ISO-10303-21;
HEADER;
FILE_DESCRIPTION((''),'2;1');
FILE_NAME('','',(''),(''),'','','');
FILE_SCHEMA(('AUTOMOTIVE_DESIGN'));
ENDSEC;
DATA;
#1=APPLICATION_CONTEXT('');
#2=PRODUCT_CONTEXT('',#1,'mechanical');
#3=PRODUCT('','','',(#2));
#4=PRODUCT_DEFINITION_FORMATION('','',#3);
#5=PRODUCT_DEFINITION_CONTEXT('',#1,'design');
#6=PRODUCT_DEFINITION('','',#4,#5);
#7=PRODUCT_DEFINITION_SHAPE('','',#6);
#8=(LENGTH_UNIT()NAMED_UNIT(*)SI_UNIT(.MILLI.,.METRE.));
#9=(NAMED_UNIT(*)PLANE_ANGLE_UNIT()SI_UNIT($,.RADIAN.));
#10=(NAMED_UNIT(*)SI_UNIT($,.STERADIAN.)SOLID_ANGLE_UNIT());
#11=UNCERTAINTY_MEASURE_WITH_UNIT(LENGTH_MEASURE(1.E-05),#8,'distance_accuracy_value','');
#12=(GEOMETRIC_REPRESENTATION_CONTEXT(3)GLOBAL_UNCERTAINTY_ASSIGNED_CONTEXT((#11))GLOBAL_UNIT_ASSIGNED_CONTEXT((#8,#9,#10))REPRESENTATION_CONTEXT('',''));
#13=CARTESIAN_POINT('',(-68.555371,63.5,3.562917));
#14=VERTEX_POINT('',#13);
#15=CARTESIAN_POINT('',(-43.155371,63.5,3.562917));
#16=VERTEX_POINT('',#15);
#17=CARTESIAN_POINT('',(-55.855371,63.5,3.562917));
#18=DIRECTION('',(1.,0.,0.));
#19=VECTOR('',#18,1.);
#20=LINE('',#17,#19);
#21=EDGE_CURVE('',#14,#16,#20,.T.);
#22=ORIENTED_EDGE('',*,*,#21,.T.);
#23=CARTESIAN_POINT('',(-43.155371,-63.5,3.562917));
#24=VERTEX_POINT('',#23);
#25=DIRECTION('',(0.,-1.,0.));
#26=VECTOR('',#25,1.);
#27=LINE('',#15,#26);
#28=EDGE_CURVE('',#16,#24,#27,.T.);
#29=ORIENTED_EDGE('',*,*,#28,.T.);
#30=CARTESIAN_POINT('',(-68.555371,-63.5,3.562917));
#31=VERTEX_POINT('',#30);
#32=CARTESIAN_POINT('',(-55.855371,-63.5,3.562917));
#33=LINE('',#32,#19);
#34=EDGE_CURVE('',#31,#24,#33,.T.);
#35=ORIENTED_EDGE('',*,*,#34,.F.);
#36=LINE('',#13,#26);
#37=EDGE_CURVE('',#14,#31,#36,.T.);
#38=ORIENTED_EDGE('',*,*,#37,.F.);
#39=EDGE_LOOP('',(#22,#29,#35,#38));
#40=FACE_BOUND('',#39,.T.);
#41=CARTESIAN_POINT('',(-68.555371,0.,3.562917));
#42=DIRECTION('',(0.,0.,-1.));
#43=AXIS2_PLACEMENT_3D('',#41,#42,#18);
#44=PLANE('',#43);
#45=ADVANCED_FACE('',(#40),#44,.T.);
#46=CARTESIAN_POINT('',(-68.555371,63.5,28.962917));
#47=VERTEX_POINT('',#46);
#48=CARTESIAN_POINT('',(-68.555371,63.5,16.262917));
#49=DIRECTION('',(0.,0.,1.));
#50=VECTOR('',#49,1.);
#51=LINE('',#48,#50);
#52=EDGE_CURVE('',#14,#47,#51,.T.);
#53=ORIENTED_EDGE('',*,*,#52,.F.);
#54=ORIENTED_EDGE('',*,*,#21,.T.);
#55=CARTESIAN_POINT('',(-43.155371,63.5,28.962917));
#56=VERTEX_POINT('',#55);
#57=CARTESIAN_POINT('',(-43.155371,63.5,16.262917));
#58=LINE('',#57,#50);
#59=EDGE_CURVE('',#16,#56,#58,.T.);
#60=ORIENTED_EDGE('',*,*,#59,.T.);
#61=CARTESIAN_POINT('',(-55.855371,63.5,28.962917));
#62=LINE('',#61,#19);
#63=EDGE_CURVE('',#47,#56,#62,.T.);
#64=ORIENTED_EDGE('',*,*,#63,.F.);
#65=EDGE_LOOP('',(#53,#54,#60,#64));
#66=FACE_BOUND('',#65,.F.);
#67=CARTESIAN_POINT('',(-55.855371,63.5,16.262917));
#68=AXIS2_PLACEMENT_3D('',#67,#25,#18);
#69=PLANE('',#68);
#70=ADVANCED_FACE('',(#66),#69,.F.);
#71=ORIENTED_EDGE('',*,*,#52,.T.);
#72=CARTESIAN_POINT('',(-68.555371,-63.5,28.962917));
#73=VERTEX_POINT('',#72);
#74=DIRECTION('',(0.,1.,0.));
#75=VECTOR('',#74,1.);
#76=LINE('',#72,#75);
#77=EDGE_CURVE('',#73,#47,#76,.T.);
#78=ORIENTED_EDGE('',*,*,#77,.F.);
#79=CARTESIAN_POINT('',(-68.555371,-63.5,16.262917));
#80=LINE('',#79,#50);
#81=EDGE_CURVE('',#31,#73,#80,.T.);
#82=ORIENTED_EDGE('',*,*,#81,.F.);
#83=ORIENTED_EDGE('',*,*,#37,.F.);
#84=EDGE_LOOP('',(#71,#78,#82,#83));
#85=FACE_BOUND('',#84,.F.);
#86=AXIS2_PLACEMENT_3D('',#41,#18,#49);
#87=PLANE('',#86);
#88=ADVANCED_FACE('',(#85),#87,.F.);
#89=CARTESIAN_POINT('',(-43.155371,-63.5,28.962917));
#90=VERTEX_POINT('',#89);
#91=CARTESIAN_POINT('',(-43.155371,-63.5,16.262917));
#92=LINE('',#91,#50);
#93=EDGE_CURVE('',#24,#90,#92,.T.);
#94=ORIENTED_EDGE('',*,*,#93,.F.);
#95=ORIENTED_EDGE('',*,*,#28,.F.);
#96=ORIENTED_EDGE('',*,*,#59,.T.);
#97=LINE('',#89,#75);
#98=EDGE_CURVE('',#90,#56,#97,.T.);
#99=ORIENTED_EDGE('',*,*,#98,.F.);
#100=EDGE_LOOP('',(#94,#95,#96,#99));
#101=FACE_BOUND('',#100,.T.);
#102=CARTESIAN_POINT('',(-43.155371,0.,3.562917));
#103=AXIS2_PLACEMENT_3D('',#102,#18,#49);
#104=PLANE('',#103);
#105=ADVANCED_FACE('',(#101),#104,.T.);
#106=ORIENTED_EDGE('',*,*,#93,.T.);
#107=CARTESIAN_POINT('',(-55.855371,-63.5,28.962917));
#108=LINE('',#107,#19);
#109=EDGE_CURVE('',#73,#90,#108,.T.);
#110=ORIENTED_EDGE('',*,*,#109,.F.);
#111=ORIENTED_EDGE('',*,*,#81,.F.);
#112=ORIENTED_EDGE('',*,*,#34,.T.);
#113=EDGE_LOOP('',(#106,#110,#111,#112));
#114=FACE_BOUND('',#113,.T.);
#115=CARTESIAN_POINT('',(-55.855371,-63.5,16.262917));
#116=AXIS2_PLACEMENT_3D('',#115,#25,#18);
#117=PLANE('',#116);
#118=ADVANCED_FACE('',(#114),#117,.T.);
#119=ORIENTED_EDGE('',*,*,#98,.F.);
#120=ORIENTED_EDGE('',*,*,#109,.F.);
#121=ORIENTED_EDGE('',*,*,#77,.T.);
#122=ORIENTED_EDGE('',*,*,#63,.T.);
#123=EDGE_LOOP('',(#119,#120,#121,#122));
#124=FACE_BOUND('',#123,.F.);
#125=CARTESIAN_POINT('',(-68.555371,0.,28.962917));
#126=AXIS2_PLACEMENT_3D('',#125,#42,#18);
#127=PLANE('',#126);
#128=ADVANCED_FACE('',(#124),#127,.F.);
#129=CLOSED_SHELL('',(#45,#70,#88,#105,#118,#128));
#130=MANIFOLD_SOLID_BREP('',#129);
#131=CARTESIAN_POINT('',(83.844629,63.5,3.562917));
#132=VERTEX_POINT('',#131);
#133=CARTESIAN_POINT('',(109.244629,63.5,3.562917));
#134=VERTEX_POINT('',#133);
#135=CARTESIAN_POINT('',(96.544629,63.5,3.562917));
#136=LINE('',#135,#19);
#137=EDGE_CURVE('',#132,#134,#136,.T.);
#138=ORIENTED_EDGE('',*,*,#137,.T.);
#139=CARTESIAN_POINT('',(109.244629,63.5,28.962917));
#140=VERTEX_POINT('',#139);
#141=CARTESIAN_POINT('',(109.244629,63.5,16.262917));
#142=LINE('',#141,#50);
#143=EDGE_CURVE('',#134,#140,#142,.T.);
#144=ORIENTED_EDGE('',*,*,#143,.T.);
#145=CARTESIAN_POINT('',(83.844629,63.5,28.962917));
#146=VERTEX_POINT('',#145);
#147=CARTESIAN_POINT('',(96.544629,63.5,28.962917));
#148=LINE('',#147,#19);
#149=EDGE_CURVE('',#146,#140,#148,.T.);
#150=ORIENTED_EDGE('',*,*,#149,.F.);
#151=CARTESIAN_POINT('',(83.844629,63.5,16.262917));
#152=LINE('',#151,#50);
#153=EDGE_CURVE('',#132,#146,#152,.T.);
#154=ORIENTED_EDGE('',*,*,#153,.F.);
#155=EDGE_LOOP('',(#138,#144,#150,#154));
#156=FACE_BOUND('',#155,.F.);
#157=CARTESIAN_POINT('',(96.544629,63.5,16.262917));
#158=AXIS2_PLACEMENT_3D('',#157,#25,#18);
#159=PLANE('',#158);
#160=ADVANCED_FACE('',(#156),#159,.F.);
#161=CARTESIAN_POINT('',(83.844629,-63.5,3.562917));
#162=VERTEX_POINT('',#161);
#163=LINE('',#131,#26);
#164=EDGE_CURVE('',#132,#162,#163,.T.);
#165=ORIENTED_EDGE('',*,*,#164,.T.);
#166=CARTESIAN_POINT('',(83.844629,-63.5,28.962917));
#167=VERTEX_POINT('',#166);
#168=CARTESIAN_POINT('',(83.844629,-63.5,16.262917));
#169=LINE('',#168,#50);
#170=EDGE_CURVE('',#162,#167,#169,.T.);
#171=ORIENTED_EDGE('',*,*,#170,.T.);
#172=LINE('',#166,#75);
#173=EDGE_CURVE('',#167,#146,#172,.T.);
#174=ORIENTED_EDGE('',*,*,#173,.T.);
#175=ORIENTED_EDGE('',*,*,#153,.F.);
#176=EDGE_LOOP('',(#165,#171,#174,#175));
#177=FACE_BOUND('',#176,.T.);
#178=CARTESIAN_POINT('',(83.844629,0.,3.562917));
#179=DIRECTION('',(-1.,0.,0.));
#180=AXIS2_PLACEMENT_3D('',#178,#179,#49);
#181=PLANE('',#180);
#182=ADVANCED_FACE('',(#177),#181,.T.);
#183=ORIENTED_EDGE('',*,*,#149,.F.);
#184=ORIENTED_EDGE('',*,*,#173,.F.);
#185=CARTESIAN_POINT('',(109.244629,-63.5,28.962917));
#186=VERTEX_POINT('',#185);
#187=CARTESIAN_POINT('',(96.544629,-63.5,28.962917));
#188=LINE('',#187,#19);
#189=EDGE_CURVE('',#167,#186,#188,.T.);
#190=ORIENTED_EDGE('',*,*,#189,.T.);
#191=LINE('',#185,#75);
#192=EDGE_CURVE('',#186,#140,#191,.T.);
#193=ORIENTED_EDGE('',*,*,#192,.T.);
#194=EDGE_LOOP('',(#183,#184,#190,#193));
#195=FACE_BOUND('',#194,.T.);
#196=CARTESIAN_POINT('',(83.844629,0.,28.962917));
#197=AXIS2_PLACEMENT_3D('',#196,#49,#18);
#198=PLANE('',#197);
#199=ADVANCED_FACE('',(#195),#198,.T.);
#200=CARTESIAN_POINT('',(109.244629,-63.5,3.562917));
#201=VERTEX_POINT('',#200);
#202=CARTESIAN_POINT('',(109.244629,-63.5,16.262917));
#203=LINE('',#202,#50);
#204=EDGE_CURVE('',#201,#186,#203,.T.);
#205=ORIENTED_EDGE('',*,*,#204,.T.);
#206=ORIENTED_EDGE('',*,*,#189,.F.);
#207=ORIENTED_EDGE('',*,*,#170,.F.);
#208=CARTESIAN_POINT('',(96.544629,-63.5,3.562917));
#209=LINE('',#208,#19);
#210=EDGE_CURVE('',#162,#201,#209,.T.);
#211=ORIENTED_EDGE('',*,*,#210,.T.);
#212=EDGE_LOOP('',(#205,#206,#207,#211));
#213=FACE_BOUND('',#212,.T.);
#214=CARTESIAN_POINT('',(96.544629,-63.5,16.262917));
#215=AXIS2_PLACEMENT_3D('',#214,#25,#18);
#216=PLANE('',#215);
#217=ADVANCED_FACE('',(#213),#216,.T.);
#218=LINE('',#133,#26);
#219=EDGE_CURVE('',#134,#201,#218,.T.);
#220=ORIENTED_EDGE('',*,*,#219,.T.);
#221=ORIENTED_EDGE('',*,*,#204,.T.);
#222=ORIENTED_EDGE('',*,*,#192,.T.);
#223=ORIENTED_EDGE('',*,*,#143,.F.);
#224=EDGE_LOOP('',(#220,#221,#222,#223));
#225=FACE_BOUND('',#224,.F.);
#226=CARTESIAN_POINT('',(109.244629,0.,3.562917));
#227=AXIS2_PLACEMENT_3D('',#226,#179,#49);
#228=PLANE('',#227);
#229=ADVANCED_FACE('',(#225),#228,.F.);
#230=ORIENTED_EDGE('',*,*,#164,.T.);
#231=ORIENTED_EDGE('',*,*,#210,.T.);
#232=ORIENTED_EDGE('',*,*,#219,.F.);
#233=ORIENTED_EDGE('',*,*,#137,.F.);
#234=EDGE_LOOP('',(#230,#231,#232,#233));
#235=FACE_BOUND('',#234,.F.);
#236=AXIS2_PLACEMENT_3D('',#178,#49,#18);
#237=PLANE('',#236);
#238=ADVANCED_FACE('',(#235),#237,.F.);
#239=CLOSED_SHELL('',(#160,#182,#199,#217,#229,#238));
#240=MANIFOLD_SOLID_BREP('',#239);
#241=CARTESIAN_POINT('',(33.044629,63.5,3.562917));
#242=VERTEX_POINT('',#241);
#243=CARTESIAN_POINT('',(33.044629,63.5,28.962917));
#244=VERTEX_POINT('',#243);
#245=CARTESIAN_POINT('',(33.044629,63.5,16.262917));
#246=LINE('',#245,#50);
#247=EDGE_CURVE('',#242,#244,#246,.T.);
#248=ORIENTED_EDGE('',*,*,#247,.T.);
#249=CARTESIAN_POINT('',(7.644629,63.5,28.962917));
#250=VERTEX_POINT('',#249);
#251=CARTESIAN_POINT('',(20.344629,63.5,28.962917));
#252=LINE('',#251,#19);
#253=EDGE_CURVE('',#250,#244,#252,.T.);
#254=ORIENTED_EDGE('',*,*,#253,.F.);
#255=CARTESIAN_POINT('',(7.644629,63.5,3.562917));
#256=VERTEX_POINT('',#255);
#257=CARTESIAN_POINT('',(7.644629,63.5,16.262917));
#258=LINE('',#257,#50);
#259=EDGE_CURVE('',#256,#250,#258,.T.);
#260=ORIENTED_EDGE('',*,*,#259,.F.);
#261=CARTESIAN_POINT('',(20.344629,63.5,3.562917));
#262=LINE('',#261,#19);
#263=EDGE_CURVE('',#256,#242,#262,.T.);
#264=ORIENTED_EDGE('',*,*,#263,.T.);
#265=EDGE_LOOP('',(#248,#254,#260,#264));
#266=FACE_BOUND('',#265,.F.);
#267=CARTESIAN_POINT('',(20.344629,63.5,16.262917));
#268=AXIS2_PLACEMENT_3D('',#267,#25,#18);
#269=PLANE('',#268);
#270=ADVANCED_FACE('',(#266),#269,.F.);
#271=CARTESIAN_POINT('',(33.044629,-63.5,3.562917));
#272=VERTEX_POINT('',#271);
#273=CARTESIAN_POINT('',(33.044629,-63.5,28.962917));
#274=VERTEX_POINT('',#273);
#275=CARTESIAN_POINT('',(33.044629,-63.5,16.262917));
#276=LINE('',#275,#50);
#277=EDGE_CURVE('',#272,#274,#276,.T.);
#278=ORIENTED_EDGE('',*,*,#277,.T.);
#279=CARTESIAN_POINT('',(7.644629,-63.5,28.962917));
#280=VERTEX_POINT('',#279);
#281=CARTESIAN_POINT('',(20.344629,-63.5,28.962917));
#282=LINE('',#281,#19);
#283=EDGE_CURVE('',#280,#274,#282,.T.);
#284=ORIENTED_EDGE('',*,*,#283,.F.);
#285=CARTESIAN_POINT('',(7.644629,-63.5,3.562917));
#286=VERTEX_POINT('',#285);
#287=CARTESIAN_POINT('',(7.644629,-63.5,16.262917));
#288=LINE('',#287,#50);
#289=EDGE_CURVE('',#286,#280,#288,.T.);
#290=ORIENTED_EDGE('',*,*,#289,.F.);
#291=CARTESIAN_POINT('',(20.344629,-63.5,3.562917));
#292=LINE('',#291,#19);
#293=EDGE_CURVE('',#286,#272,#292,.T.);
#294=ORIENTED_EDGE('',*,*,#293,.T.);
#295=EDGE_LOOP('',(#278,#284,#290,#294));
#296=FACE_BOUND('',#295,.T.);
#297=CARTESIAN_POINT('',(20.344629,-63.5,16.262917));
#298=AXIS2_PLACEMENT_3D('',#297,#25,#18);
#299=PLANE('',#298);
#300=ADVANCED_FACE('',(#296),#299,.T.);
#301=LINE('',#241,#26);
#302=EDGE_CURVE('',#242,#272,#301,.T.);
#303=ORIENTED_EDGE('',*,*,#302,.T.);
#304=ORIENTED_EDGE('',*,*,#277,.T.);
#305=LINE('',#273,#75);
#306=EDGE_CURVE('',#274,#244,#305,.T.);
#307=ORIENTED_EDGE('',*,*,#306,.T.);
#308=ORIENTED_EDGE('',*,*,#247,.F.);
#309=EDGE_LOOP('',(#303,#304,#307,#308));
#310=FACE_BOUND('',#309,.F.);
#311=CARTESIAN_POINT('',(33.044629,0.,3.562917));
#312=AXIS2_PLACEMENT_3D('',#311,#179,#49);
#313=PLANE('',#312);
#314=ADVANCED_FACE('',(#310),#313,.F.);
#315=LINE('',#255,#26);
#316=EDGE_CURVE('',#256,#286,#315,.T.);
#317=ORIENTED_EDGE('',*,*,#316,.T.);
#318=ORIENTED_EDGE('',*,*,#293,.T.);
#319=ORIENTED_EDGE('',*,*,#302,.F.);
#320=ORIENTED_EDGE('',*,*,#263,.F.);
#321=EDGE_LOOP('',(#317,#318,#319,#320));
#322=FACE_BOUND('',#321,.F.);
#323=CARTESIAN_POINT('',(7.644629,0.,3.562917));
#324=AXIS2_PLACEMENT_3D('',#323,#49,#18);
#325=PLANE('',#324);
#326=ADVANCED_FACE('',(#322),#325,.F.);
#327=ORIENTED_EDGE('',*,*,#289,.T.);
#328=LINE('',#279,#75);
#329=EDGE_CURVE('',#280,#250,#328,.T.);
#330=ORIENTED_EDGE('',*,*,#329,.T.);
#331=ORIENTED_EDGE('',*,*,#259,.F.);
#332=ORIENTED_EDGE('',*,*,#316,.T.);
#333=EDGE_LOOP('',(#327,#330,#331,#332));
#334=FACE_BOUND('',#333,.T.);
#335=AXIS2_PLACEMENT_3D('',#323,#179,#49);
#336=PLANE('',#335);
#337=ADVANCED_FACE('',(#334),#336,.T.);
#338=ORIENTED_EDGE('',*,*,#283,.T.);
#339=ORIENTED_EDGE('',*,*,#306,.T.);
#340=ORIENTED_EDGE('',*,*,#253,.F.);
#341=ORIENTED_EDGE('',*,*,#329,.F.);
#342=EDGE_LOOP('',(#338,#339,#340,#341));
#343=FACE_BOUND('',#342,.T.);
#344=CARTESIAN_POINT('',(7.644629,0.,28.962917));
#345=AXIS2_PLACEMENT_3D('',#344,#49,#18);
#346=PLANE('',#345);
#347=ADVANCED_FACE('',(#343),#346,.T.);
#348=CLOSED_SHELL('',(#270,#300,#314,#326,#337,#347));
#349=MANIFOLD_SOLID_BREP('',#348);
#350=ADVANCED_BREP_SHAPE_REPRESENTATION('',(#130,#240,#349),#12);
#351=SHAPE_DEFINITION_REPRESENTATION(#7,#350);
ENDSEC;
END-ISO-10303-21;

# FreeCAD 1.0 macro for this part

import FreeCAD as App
import Part
import Sketcher

V = App.Vector
Q = App.Units.Quantity

doc = App.newDocument("Part")
body = doc.addObject("PartDesign::Body", "Body")
body.AllowCompound = True

# Sketch on XZ plane
sketch1 = doc.addObject("Sketcher::SketchObject", "Sketch")
body.addObject(sketch1)
sketch1.AttachmentSupport = (doc.XZ_Plane, [""])
sketch1.MapMode = "FlatFace"
sketch1.addGeometry([
    Part.LineSegment(V(84, 29, 0), V(84, 4, 0)),  # 0
    Part.LineSegment(V(84, 4, 0), V(109, 4, 0)),  # 1
    Part.LineSegment(V(109, 4, 0), V(109, 29, 0)),  # 2
    Part.LineSegment(V(109, 29, 0), V(84, 29, 0)),  # 3
    Part.LineSegment(V(8, 29, 0), V(8, 4, 0)),  # 4
    Part.LineSegment(V(8, 4, 0), V(33, 4, 0)),  # 5
    Part.LineSegment(V(33, 4, 0), V(33, 29, 0)),  # 6
    Part.LineSegment(V(33, 29, 0), V(8, 29, 0)),  # 7
    Part.LineSegment(V(-69, 29, 0), V(-69, 4, 0)),  # 8
    Part.LineSegment(V(-69, 4, 0), V(-43, 4, 0)),  # 9
    Part.LineSegment(V(-43, 4, 0), V(-43, 29, 0)),  # 10
    Part.LineSegment(V(-43, 29, 0), V(-69, 29, 0)),  # 11
], False)
sketch1.addConstraint([
    Sketcher.Constraint("Coincident", 0, 2, 1, 1),
    Sketcher.Constraint("Coincident", 1, 2, 2, 1),
    Sketcher.Constraint("Coincident", 2, 2, 3, 1),
    Sketcher.Constraint("Coincident", 3, 2, 0, 1),
    Sketcher.Constraint("Coincident", 4, 2, 5, 1),
    Sketcher.Constraint("Coincident", 5, 2, 6, 1),
    Sketcher.Constraint("Coincident", 6, 2, 7, 1),
    Sketcher.Constraint("Coincident", 7, 2, 4, 1),
    Sketcher.Constraint("Coincident", 8, 2, 9, 1),
    Sketcher.Constraint("Coincident", 9, 2, 10, 1),
    Sketcher.Constraint("Coincident", 10, 2, 11, 1),
    Sketcher.Constraint("Coincident", 11, 2, 8, 1),
    Sketcher.Constraint("Vertical", 0),
    Sketcher.Constraint("Horizontal", 1),
    Sketcher.Constraint("Vertical", 2),
    Sketcher.Constraint("Horizontal", 3),
    Sketcher.Constraint("Vertical", 4),
    Sketcher.Constraint("Horizontal", 5),
    Sketcher.Constraint("Vertical", 6),
    Sketcher.Constraint("Horizontal", 7),
    Sketcher.Constraint("Vertical", 8),
    Sketcher.Constraint("Horizontal", 9),
    Sketcher.Constraint("Vertical", 10),
    Sketcher.Constraint("Horizontal", 11),
    Sketcher.Constraint("Horizontal", 1, 2, 4, 2),
    Sketcher.Constraint("Horizontal", 3, 2, 6, 2),
    Sketcher.Constraint("Horizontal", 5, 2, 8, 2),
    Sketcher.Constraint("Horizontal", 7, 2, 10, 2),
    Sketcher.Constraint("Equal", 3, 5),
    Sketcher.Constraint("Equal", 7, 9),
    Sketcher.Constraint("Equal", 11, 0),
    Sketcher.Constraint("DistanceX", 1, 1, 1, 2, Q("1 in")),
    Sketcher.Constraint("DistanceX", 4, 2, 0, 2, Q("3 in")),
    Sketcher.Constraint("DistanceX", 8, 2, 4, 2, Q("3 in")),
    Sketcher.Constraint("DistanceX", -1, 1, 0, 2, Q("83.844629 mm")),
    Sketcher.Constraint("DistanceY", -1, 1, 0, 2, Q("3.562917 mm")),
])
pad1 = doc.addObject("PartDesign::Pad", "Pad")
body.addObject(pad1)
pad1.Profile = sketch1
pad1.Length = Q("5 in")
pad1.Midplane = True

doc.recompute()
